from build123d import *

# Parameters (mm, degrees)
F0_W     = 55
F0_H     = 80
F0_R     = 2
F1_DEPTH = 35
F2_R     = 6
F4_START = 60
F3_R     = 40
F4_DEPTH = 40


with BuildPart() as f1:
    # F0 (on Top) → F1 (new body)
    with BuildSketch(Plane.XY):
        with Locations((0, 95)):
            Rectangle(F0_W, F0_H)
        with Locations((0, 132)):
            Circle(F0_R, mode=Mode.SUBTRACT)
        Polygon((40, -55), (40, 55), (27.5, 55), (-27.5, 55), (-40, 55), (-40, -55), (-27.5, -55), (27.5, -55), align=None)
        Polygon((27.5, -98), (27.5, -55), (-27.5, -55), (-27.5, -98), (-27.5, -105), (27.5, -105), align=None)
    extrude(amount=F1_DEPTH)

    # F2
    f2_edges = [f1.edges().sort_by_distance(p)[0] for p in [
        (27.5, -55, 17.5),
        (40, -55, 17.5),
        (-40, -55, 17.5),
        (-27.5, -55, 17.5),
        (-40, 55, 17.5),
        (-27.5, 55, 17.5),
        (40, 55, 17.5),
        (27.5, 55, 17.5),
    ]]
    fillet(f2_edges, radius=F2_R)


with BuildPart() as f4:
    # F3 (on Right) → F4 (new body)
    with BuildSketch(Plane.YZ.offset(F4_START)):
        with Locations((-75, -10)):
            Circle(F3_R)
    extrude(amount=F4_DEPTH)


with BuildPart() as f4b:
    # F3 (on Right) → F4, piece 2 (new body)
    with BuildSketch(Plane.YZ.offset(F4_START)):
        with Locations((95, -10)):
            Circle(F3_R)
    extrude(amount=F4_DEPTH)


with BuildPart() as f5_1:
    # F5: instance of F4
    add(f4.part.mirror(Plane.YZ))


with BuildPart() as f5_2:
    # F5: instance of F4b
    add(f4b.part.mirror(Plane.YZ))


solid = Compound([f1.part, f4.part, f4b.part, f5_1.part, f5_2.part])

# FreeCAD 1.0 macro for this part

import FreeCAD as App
import Part
import Sketcher
Q = App.Units.Quantity


def edges_at(feature, points):
    """Names of the edges that pass closest to the given points."""
    edges = feature.Shape.Edges
    near = lambda p: min(range(len(edges)), key=lambda i: edges[i].distToShape(Part.Vertex(*p))[0])
    return sorted({f"Edge{near(p) + 1}" for p in points})


def add_polygon(sketch, points):
    """Adds a closed chain of lines whose ends are joined by coincident constraints."""
    first, n = sketch.GeometryCount, len(points)
    for a, b in zip(points, points[1:] + points[:1]):
        sketch.addGeometry(Part.LineSegment(App.Vector(*a, 0), App.Vector(*b, 0)), False)
    for i in range(n):
        sketch.addConstraint(Sketcher.Constraint("Coincident", first + i, 2, first + (i + 1) % n, 1))

doc = App.newDocument("Part")
body = doc.addObject("PartDesign::Body", "Body")

# Sketch on XY plane
sketch1 = doc.addObject("Sketcher::SketchObject", "Sketch")
body.addObject(sketch1)
sketch1.AttachmentSupport = (doc.XY_Plane, [""])
sketch1.MapMode = "FlatFace"
add_polygon(sketch1, [(-27.5, 135), (-27.5, 55), (-40, 55), (-40, -55), (-27.5, -55), (-27.5, -105), (27.5, -105), (27.5, -55), (40, -55), (40, 55), (27.5, 55), (27.5, 135)])  # lines 0-11
sketch1.addGeometry(Part.Circle(App.Vector(0, 132, 0), App.Vector(0, 0, 1), 2), False)  # 12
sketch1.addConstraint(Sketcher.Constraint("Vertical", 0))
sketch1.addConstraint(Sketcher.Constraint("Horizontal", 1))
sketch1.addConstraint(Sketcher.Constraint("Vertical", 2))
sketch1.addConstraint(Sketcher.Constraint("Horizontal", 3))
sketch1.addConstraint(Sketcher.Constraint("Vertical", 4))
sketch1.addConstraint(Sketcher.Constraint("Horizontal", 5))
sketch1.addConstraint(Sketcher.Constraint("Vertical", 6))
sketch1.addConstraint(Sketcher.Constraint("Horizontal", 7))
sketch1.addConstraint(Sketcher.Constraint("Vertical", 8))
sketch1.addConstraint(Sketcher.Constraint("Horizontal", 9))
sketch1.addConstraint(Sketcher.Constraint("Vertical", 10))
sketch1.addConstraint(Sketcher.Constraint("Horizontal", 11))
sketch1.addConstraint(Sketcher.Constraint("Symmetric", 0, 2, 6, 2, -1, 1))
sketch1.addConstraint(Sketcher.Constraint("Symmetric", 2, 2, 8, 2, -1, 1))
sketch1.addConstraint(Sketcher.Constraint("Symmetric", 3, 2, 6, 2, -2))
sketch1.addConstraint(Sketcher.Constraint("PointOnObject", 12, 3, -2))
sketch1.addConstraint(Sketcher.Constraint("Vertical", 6, 2, 9, 2))
sketch1.addConstraint(Sketcher.Constraint("Diameter", 12, Q("4 mm")))
sketch1.addConstraint(Sketcher.Constraint("DistanceX", 5, 1, 5, 2, Q("55 mm")))
sketch1.addConstraint(Sketcher.Constraint("DistanceY", 0, 2, 0, 1, Q("80 mm")))
sketch1.addConstraint(Sketcher.Constraint("DistanceY", 2, 2, 2, 1, Q("110 mm")))
sketch1.addConstraint(Sketcher.Constraint("DistanceY", 4, 2, 4, 1, Q("50 mm")))
sketch1.addConstraint(Sketcher.Constraint("DistanceX", 1, 2, 1, 1, Q("12.5 mm")))
sketch1.addConstraint(Sketcher.Constraint("DistanceY", -1, 1, 12, 3, Q("132 mm")))
pad1 = doc.addObject("PartDesign::Pad", "Pad")
body.addObject(pad1)
pad1.Profile = sketch1
pad1.Length = 35
doc.recompute()

fillet = doc.addObject("PartDesign::Fillet", "Fillet")
body.addObject(fillet)
fillet.Base = (pad1, edges_at(pad1, [
    (27.5, -55, 17.5),
    (40, -55, 17.5),
    (-40, -55, 17.5),
    (-27.5, -55, 17.5),
    (-40, 55, 17.5),
    (-27.5, 55, 17.5),
    (40, 55, 17.5),
    (27.5, 55, 17.5),
]))
fillet.Radius = 6
body2 = doc.addObject("PartDesign::Body", "Body001")

# Sketch on YZ plane
sketch2 = doc.addObject("Sketcher::SketchObject", "Sketch001")
body2.addObject(sketch2)
sketch2.AttachmentSupport = (doc.getObject("YZ_Plane001"), [""])
sketch2.MapMode = "FlatFace"
sketch2.AttachmentOffset = App.Placement(App.Vector(0, 0, 60), App.Rotation())
sketch2.addGeometry(Part.Circle(App.Vector(-75, -10, 0), App.Vector(0, 0, 1), 40), False)
sketch2.addConstraint(Sketcher.Constraint("Diameter", 0, Q("80 mm")))
sketch2.addConstraint(Sketcher.Constraint("DistanceX", 0, 3, -1, 1, Q("75 mm")))
sketch2.addConstraint(Sketcher.Constraint("DistanceY", 0, 3, -1, 1, Q("10 mm")))
pad2 = doc.addObject("PartDesign::Pad", "Pad001")
body2.addObject(pad2)
pad2.Profile = sketch2
pad2.Length = 40
body3 = doc.addObject("PartDesign::Body", "Body002")

# Sketch on YZ plane
sketch3 = doc.addObject("Sketcher::SketchObject", "Sketch002")
body3.addObject(sketch3)
sketch3.AttachmentSupport = (doc.getObject("YZ_Plane002"), [""])
sketch3.MapMode = "FlatFace"
sketch3.AttachmentOffset = App.Placement(App.Vector(0, 0, 60), App.Rotation())
sketch3.addGeometry(Part.Circle(App.Vector(95, -10, 0), App.Vector(0, 0, 1), 40), False)
sketch3.addConstraint(Sketcher.Constraint("Diameter", 0, Q("80 mm")))
sketch3.addConstraint(Sketcher.Constraint("DistanceX", -1, 1, 0, 3, Q("95 mm")))
sketch3.addConstraint(Sketcher.Constraint("DistanceY", 0, 3, -1, 1, Q("10 mm")))
pad3 = doc.addObject("PartDesign::Pad", "Pad002")
body3.addObject(pad3)
pad3.Profile = sketch3
pad3.Length = 40
body4 = doc.addObject("PartDesign::Body", "Body003")
doc.recompute()

mirroring = doc.addObject("Part::Mirroring", "Mirroring")
mirroring.Source = body2
mirroring.Base = App.Vector(0, 0, 0)
mirroring.Normal = App.Vector(1, 0, 0)
body4.BaseFeature = mirroring
doc.recompute()
body5 = doc.addObject("PartDesign::Body", "Body004")
doc.recompute()

mirroring2 = doc.addObject("Part::Mirroring", "Mirroring001")
mirroring2.Source = body3
mirroring2.Base = App.Vector(0, 0, 0)
mirroring2.Normal = App.Vector(1, 0, 0)
body5.BaseFeature = mirroring2
doc.recompute()
mirroring.Visibility = False
mirroring2.Visibility = False

doc.recompute()
